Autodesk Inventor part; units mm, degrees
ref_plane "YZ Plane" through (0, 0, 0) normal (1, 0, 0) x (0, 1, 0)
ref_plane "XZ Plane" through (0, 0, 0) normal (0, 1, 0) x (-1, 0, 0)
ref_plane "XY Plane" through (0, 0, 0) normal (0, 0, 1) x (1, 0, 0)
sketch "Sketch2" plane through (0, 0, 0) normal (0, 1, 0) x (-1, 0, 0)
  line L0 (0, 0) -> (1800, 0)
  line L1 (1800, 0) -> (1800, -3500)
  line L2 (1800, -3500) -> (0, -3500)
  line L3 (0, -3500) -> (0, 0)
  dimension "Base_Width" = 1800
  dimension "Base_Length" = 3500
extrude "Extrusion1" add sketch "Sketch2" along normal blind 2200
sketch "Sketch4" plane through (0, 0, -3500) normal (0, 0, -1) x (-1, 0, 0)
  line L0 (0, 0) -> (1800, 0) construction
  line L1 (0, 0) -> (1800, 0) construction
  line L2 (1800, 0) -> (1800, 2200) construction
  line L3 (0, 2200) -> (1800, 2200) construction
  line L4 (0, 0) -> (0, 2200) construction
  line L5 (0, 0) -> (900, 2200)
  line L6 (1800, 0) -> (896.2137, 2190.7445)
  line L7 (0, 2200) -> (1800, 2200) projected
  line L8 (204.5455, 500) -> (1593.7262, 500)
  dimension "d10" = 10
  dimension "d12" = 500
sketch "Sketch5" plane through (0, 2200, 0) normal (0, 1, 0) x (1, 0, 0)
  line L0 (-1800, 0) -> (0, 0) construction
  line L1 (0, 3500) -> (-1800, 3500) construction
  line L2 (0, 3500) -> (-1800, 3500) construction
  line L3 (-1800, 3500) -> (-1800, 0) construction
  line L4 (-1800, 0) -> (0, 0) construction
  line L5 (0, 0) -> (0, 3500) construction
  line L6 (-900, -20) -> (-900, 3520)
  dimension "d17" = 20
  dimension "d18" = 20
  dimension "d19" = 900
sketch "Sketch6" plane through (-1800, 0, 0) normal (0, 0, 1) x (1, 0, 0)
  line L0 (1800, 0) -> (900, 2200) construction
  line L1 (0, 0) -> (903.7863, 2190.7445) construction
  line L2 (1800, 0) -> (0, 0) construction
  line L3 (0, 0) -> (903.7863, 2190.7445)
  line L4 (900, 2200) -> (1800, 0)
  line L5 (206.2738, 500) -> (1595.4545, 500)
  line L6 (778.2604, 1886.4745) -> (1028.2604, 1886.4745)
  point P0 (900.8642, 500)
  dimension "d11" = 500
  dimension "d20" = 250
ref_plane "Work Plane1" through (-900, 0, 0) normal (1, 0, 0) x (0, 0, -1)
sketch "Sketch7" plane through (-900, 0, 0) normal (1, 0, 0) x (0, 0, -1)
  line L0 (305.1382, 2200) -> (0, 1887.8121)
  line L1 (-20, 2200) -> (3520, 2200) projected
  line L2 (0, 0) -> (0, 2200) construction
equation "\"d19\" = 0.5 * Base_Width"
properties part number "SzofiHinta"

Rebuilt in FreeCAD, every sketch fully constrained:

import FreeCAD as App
import Part
import Sketcher

V = App.Vector
Q = App.Units.Quantity


def add_polygon(sketch, points):
    """Adds a closed chain of lines whose ends are joined by coincident constraints."""
    first, n = sketch.GeometryCount, len(points)
    for a, b in zip(points, points[1:] + points[:1]):
        sketch.addGeometry(Part.LineSegment(App.Vector(*a, 0), App.Vector(*b, 0)), False)
    for i in range(n):
        sketch.addConstraint(Sketcher.Constraint("Coincident", first + i, 2, first + (i + 1) % n, 1))

doc = App.newDocument("Part")
body = doc.addObject("PartDesign::Body", "Body")

sketch1 = body.newObject("Sketcher::SketchObject", "Sketch")
sketch1.AttachmentSupport = (doc.getObject("XZ_Plane"), [""])
sketch1.MapMode = "FlatFace"
add_polygon(sketch1, [(-1800, 0), (0, 0), (0, -3500), (-1800, -3500)])
sketch1.addConstraint([
    Sketcher.Constraint("Horizontal", 0),
    Sketcher.Constraint("Vertical", 1),
    Sketcher.Constraint("Horizontal", 2),
    Sketcher.Constraint("Vertical", 3),
    Sketcher.Constraint("Coincident", 0, 2, -1, 1),
    Sketcher.Constraint("DistanceX", 0, 1, 0, 2, Q("1800 mm")),
    Sketcher.Constraint("DistanceY", 1, 2, 1, 1, Q("3500 mm")),
])
pad1 = body.newObject("PartDesign::Pad", "Pad")
pad1.Profile = sketch1
pad1.Length = 2200
pad1.Reversed = True

doc.recompute()
